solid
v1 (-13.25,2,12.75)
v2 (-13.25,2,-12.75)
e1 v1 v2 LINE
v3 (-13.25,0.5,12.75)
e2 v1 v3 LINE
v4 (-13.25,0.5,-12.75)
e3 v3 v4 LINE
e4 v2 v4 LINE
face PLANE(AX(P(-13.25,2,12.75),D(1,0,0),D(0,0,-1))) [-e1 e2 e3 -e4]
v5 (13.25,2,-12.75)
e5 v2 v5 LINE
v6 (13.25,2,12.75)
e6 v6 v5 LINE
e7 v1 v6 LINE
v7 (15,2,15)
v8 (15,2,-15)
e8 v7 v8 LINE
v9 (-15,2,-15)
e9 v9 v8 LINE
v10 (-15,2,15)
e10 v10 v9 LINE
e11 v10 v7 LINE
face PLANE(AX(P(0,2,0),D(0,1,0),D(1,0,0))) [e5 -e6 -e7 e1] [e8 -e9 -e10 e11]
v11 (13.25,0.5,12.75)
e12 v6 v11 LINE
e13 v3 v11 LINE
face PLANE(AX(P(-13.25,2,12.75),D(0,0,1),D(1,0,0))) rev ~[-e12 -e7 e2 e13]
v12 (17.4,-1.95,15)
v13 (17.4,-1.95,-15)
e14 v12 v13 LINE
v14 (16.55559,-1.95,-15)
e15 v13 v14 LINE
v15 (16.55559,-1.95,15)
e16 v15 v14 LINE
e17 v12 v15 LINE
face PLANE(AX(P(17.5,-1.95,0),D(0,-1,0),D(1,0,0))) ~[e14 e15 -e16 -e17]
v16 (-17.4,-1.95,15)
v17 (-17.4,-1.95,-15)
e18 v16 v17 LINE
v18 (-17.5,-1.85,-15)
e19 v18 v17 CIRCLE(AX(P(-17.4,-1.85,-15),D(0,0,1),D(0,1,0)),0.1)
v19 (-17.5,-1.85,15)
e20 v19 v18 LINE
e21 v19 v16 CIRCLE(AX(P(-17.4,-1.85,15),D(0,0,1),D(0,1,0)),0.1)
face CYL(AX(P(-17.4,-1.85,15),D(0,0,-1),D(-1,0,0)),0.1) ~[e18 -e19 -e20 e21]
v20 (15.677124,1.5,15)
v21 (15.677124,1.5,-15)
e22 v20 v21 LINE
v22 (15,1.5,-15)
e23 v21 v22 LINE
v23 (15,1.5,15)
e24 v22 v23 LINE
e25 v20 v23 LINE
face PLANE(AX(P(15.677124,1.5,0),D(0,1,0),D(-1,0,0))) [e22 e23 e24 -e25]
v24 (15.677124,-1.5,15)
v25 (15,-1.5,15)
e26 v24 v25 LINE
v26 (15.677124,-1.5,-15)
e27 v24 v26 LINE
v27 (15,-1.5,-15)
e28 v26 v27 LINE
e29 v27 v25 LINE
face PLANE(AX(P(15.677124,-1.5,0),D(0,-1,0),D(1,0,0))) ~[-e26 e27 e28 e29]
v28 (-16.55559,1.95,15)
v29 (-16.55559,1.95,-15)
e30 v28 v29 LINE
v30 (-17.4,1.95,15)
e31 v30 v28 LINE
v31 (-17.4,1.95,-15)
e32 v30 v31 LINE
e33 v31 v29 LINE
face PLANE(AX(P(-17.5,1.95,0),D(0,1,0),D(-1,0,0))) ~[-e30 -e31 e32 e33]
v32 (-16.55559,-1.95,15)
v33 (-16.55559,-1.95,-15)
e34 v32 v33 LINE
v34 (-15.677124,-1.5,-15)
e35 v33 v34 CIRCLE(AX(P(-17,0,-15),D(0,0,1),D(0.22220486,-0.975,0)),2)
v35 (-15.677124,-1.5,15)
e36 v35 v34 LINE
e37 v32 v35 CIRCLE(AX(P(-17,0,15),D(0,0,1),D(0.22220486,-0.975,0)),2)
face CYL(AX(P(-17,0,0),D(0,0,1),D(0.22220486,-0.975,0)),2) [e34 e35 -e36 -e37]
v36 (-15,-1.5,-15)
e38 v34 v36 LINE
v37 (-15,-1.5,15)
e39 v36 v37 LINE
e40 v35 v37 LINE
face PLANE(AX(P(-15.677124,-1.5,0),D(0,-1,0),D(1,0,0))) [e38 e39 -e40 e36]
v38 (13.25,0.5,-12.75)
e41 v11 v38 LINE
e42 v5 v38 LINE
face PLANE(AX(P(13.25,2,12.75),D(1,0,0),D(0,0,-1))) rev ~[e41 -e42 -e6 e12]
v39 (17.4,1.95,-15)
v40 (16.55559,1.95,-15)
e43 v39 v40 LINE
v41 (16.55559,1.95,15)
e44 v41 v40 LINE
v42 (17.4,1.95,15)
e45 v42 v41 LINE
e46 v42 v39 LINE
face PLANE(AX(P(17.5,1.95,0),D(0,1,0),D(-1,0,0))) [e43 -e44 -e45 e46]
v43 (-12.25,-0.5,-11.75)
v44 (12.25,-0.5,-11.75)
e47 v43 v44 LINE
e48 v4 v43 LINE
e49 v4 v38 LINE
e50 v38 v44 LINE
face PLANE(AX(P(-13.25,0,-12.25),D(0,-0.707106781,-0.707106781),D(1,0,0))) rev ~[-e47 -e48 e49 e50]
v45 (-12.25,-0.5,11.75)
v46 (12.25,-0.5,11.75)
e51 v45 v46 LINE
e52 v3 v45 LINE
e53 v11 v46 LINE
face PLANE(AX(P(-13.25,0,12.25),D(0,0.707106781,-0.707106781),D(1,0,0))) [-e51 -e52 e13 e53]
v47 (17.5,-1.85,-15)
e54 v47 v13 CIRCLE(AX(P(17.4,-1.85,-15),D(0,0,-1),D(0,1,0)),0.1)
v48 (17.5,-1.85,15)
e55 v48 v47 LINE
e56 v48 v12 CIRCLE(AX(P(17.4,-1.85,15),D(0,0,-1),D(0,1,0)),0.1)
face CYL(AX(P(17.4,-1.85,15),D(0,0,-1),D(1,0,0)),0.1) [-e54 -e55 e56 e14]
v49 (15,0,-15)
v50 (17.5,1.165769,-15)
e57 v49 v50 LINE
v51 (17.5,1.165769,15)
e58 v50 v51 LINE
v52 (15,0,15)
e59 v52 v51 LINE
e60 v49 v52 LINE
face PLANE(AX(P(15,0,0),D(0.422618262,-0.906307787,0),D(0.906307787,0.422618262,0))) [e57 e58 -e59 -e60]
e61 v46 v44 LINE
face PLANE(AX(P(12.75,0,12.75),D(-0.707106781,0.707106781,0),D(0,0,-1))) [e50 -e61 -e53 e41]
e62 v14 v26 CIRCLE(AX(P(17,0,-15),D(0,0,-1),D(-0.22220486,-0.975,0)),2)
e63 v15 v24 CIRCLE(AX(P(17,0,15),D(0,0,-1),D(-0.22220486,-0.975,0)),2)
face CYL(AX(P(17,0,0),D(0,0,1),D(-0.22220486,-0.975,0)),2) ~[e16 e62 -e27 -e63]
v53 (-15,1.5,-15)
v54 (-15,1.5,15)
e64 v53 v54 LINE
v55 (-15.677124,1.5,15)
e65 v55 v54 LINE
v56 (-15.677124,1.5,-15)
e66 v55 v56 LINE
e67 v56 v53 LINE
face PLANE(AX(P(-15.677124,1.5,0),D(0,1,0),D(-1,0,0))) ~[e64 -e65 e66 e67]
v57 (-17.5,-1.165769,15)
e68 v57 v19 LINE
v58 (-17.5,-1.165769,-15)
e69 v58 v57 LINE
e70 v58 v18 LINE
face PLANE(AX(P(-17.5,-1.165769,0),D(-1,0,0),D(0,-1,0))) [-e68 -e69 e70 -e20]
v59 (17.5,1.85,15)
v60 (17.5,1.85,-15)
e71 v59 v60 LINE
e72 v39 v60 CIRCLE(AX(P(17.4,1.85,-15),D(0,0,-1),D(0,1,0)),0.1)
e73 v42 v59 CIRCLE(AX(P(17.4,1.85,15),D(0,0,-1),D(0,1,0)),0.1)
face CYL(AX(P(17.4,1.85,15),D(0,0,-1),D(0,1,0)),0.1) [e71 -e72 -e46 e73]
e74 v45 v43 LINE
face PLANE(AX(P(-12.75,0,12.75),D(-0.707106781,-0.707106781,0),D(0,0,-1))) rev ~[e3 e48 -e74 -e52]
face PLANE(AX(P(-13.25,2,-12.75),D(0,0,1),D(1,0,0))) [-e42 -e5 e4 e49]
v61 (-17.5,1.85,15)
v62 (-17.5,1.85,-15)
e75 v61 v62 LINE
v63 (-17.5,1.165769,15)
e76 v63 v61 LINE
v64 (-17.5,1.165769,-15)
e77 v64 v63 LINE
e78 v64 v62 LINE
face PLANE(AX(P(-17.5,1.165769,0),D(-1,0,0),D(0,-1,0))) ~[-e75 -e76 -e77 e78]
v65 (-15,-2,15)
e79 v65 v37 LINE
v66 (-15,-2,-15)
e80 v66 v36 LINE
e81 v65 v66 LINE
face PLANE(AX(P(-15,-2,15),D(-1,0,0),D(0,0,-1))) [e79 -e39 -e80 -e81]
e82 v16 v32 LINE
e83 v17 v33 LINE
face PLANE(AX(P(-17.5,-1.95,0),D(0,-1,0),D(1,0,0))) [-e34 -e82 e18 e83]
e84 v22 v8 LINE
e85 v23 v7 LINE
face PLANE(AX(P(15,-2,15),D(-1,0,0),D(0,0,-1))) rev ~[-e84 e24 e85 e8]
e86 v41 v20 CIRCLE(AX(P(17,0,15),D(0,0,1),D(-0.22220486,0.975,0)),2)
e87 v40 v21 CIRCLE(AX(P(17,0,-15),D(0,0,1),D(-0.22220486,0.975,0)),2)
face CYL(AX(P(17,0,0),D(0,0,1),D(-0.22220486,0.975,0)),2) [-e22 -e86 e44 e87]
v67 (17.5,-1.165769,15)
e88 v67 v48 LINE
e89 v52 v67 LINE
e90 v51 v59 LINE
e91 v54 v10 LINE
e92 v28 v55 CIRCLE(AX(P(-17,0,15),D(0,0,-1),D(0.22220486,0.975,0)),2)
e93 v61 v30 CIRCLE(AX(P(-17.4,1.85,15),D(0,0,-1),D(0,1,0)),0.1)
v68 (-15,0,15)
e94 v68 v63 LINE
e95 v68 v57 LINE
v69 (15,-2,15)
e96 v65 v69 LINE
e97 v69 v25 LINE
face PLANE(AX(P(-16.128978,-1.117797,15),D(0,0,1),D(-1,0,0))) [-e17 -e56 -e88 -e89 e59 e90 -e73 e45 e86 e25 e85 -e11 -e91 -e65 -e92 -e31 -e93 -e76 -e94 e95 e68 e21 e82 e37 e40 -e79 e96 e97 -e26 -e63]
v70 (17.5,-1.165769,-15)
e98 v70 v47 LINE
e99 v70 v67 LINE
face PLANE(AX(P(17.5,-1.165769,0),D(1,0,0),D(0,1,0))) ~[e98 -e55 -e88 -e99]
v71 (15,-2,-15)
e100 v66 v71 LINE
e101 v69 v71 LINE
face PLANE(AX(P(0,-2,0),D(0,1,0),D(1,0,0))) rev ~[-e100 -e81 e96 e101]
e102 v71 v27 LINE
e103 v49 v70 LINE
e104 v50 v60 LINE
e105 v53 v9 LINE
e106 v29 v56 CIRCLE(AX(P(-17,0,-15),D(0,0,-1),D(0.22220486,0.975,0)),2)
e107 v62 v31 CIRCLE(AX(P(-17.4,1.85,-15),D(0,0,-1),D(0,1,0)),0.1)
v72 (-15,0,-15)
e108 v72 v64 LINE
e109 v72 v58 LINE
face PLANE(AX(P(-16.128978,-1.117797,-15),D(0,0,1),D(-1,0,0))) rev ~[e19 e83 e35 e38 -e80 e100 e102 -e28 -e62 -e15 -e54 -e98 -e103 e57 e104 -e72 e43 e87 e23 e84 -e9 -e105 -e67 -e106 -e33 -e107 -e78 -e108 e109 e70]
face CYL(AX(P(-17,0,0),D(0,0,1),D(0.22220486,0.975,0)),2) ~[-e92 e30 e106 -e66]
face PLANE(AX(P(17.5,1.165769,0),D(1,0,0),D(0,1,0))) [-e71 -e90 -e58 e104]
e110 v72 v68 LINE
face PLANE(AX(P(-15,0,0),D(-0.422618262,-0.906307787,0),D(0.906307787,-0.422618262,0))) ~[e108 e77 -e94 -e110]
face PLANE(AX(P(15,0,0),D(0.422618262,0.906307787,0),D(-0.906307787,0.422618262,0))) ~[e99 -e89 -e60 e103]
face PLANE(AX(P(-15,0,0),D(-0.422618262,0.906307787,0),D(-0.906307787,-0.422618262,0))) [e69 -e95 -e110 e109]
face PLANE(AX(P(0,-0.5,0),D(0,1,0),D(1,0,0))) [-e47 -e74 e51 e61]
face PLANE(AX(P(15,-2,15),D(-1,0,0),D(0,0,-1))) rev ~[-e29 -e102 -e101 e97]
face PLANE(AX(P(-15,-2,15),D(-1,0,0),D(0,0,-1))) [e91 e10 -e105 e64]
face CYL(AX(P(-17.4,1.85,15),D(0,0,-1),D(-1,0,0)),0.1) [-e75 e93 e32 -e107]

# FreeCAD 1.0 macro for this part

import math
import FreeCAD as App
import Part
import Sketcher
from FreeCAD import Vector
Q = App.Units.Quantity


def edges_at(feature, points):
    """Names of the edges that pass closest to the given points."""
    edges = feature.Shape.Edges
    near = lambda p: min(range(len(edges)), key=lambda i: edges[i].distToShape(Part.Vertex(*p))[0])
    return sorted({f"Edge{near(p) + 1}" for p in points})


def add_polygon(sketch, points):
    """Adds a closed chain of lines whose ends are joined by coincident constraints."""
    first, n = sketch.GeometryCount, len(points)
    for a, b in zip(points, points[1:] + points[:1]):
        sketch.addGeometry(Part.LineSegment(App.Vector(*a, 0), App.Vector(*b, 0)), False)
    for i in range(n):
        sketch.addConstraint(Sketcher.Constraint("Coincident", first + i, 2, first + (i + 1) % n, 1))

doc = App.newDocument("Part")
body = doc.addObject("PartDesign::Body", "Body")

# Sketch on XZ plane
sketch1 = doc.addObject("Sketcher::SketchObject", "Sketch")
body.addObject(sketch1)
sketch1.AttachmentSupport = (doc.XZ_Plane, [""])
sketch1.MapMode = "FlatFace"
add_polygon(sketch1, [(-15, -15), (-15, 15), (15, 15), (15, -15)])  # lines 0-3
sketch1.addConstraint(Sketcher.Constraint("Vertical", 0))
sketch1.addConstraint(Sketcher.Constraint("Horizontal", 1))
sketch1.addConstraint(Sketcher.Constraint("Vertical", 2))
sketch1.addConstraint(Sketcher.Constraint("Horizontal", 3))
sketch1.addConstraint(Sketcher.Constraint("Symmetric", 0, 2, 2, 2, -1, 1))
sketch1.addConstraint(Sketcher.Constraint("Equal", 3, 0))
sketch1.addConstraint(Sketcher.Constraint("DistanceX", 1, 1, 1, 2, Q("30 mm")))
pad1 = doc.addObject("PartDesign::Pad", "Pad")
body.addObject(pad1)
pad1.Profile = sketch1
pad1.Type = "TwoLengths"
pad1.Length = 2
pad1.Length2 = 2
pad1.Reversed = True

# Sketch on XZ plane
sketch2 = doc.addObject("Sketcher::SketchObject", "Sketch001")
body.addObject(sketch2)
sketch2.AttachmentSupport = (doc.XZ_Plane, [""])
sketch2.MapMode = "FlatFace"
sketch2.AttachmentOffset = App.Placement(Vector(0, 0, -2), App.Rotation())
add_polygon(sketch2, [(-13, -13), (-13, 13), (13, 13), (13, -13)])  # lines 0-3
sketch2.addConstraint(Sketcher.Constraint("Vertical", 0))
sketch2.addConstraint(Sketcher.Constraint("Horizontal", 1))
sketch2.addConstraint(Sketcher.Constraint("Vertical", 2))
sketch2.addConstraint(Sketcher.Constraint("Horizontal", 3))
sketch2.addConstraint(Sketcher.Constraint("Symmetric", 0, 2, 2, 2, -1, 1))
sketch2.addConstraint(Sketcher.Constraint("DistanceX", 1, 1, 1, 2, Q("26.5 mm")))
sketch2.addConstraint(Sketcher.Constraint("DistanceY", 0, 1, 0, 2, Q("25.5 mm")))
pocket1 = doc.addObject("PartDesign::Pocket", "Pocket")
body.addObject(pocket1)
pocket1.Profile = sketch2
pocket1.Length = 2.5
pocket1.Reversed = True
doc.recompute()

chamfer = doc.addObject("PartDesign::Chamfer", "Chamfer")
body.addObject(chamfer)
chamfer.Base = (pocket1, edges_at(pocket1, [
    (0, -0.5, -12.75),
    (13.25, -0.5, 0),
    (0, -0.5, 12.75),
    (-13.25, -0.5, 0),
]))
chamfer.Size = 1

# Sketch on XY plane
sketch3 = doc.addObject("Sketcher::SketchObject", "Sketch002")
body.addObject(sketch3)
sketch3.AttachmentSupport = (doc.XY_Plane, [""])
sketch3.MapMode = "FlatFace"
sketch3.addGeometry(Part.LineSegment(Vector(15.7, 1.5, 0), Vector(15, 1.5, 0)), False)
sketch3.addGeometry(Part.LineSegment(Vector(15, 1.5, 0), Vector(15, 0, 0)), False)
sketch3.addGeometry(Part.LineSegment(Vector(15, 0, 0), Vector(17.5, 1.2, 0)), False)
sketch3.addGeometry(Part.LineSegment(Vector(17.5, 1.2, 0), Vector(17.5, 1.9, 0)), False)
sketch3.addGeometry(Part.LineSegment(Vector(17.5, 1.9, 0), Vector(16.6, 1.9, 0)), False)
sketch3.addGeometry(Part.ArcOfCircle(Part.Circle(Vector(17, 0, 0), Vector(0, 0, 1), 2), math.radians(103), math.radians(131)), False)
sketch3.addConstraint(Sketcher.Constraint("Coincident", 0, 2, 1, 1))
sketch3.addConstraint(Sketcher.Constraint("Coincident", 1, 2, 2, 1))
sketch3.addConstraint(Sketcher.Constraint("Coincident", 2, 2, 3, 1))
sketch3.addConstraint(Sketcher.Constraint("Coincident", 3, 2, 4, 1))
sketch3.addConstraint(Sketcher.Constraint("Coincident", 4, 2, 5, 1))
sketch3.addConstraint(Sketcher.Constraint("Coincident", 5, 2, 0, 1))
sketch3.addConstraint(Sketcher.Constraint("Horizontal", 0))
sketch3.addConstraint(Sketcher.Constraint("Vertical", 1))
sketch3.addConstraint(Sketcher.Constraint("Vertical", 3))
sketch3.addConstraint(Sketcher.Constraint("Horizontal", 4))
sketch3.addConstraint(Sketcher.Constraint("PointOnObject", 5, 3, -1))
sketch3.addConstraint(Sketcher.Constraint("PointOnObject", 1, 2, -1))
sketch3.addConstraint(Sketcher.Constraint("Radius", 5, Q("2 mm")))
sketch3.addConstraint(Sketcher.Constraint("Angle", 2, Q("25 deg")))
sketch3.addConstraint(Sketcher.Constraint("DistanceY", 1, 2, 1, 1, Q("1.5 mm")))
sketch3.addConstraint(Sketcher.Constraint("DistanceX", -1, 1, 5, 3, Q("17 mm")))
sketch3.addConstraint(Sketcher.Constraint("DistanceX", -1, 1, 0, 2, Q("15 mm")))
sketch3.addConstraint(Sketcher.Constraint("DistanceX", -1, 1, 2, 2, Q("17.5 mm")))
sketch3.addConstraint(Sketcher.Constraint("DistanceY", -1, 1, 3, 2, Q("1.95 mm")))
pad2 = doc.addObject("PartDesign::Pad", "Pad001")
body.addObject(pad2)
pad2.Profile = sketch3
pad2.Length = 30
pad2.Midplane = True
doc.recompute()

mirrored = doc.addObject("PartDesign::Mirrored", "Mirrored")
body.addObject(mirrored)
mirrored.Originals = [pad2]
mirrored.MirrorPlane = (doc.XZ_Plane, [""])
body.Tip = mirrored
doc.recompute()

mirrored2 = doc.addObject("PartDesign::Mirrored", "Mirrored001")
body.addObject(mirrored2)
mirrored2.Originals = [pad2]
mirrored2.MirrorPlane = (doc.YZ_Plane, [""])
body.Tip = mirrored2

# Sketch on XY plane
sketch4 = doc.addObject("Sketcher::SketchObject", "Sketch003")
body.addObject(sketch4)
sketch4.AttachmentSupport = (doc.XY_Plane, [""])
sketch4.MapMode = "FlatFace"
sketch4.addGeometry(Part.LineSegment(Vector(-15.7, -1.5, 0), Vector(-15, -1.5, 0)), False)
sketch4.addGeometry(Part.LineSegment(Vector(-15, -1.5, 0), Vector(-15, 0, 0)), False)
sketch4.addGeometry(Part.LineSegment(Vector(-15, 0, 0), Vector(-17.5, -1.2, 0)), False)
sketch4.addGeometry(Part.LineSegment(Vector(-17.5, -1.2, 0), Vector(-17.5, -1.9, 0)), False)
sketch4.addGeometry(Part.LineSegment(Vector(-17.5, -1.9, 0), Vector(-16.6, -1.9, 0)), False)
sketch4.addGeometry(Part.ArcOfCircle(Part.Circle(Vector(-17, 0, 0), Vector(0, 0, 1), 2), math.radians(-77), math.radians(-49)), False)
sketch4.addConstraint(Sketcher.Constraint("Coincident", 0, 2, 1, 1))
sketch4.addConstraint(Sketcher.Constraint("Coincident", 1, 2, 2, 1))
sketch4.addConstraint(Sketcher.Constraint("Coincident", 2, 2, 3, 1))
sketch4.addConstraint(Sketcher.Constraint("Coincident", 3, 2, 4, 1))
sketch4.addConstraint(Sketcher.Constraint("Coincident", 4, 2, 5, 1))
sketch4.addConstraint(Sketcher.Constraint("Coincident", 5, 2, 0, 1))
sketch4.addConstraint(Sketcher.Constraint("Horizontal", 0))
sketch4.addConstraint(Sketcher.Constraint("Vertical", 1))
sketch4.addConstraint(Sketcher.Constraint("Vertical", 3))
sketch4.addConstraint(Sketcher.Constraint("Horizontal", 4))
sketch4.addConstraint(Sketcher.Constraint("PointOnObject", 5, 3, -1))
sketch4.addConstraint(Sketcher.Constraint("PointOnObject", 1, 2, -1))
sketch4.addConstraint(Sketcher.Constraint("Radius", 5, Q("2 mm")))
sketch4.addConstraint(Sketcher.Constraint("Angle", 2, Q("-155 deg")))
sketch4.addConstraint(Sketcher.Constraint("DistanceY", 1, 1, 1, 2, Q("1.5 mm")))
sketch4.addConstraint(Sketcher.Constraint("DistanceX", 5, 3, -1, 1, Q("17 mm")))
sketch4.addConstraint(Sketcher.Constraint("DistanceX", 0, 2, -1, 1, Q("15 mm")))
sketch4.addConstraint(Sketcher.Constraint("DistanceX", 2, 2, -1, 1, Q("17.5 mm")))
sketch4.addConstraint(Sketcher.Constraint("DistanceY", 3, 2, -1, 1, Q("1.95 mm")))
pad3 = doc.addObject("PartDesign::Pad", "Pad002")
body.addObject(pad3)
pad3.Profile = sketch4
pad3.Length = 30
pad3.Midplane = True
doc.recompute()

fillet = doc.addObject("PartDesign::Fillet", "Fillet")
body.addObject(fillet)
fillet.Base = (pad3, edges_at(pad3, [
    (-17.5, -1.95, 0),
    (17.5, 1.95, 0),
    (17.5, -1.95, 0),
    (-17.5, 1.95, 0),
]))
fillet.Radius = 0.1

doc.recompute()
